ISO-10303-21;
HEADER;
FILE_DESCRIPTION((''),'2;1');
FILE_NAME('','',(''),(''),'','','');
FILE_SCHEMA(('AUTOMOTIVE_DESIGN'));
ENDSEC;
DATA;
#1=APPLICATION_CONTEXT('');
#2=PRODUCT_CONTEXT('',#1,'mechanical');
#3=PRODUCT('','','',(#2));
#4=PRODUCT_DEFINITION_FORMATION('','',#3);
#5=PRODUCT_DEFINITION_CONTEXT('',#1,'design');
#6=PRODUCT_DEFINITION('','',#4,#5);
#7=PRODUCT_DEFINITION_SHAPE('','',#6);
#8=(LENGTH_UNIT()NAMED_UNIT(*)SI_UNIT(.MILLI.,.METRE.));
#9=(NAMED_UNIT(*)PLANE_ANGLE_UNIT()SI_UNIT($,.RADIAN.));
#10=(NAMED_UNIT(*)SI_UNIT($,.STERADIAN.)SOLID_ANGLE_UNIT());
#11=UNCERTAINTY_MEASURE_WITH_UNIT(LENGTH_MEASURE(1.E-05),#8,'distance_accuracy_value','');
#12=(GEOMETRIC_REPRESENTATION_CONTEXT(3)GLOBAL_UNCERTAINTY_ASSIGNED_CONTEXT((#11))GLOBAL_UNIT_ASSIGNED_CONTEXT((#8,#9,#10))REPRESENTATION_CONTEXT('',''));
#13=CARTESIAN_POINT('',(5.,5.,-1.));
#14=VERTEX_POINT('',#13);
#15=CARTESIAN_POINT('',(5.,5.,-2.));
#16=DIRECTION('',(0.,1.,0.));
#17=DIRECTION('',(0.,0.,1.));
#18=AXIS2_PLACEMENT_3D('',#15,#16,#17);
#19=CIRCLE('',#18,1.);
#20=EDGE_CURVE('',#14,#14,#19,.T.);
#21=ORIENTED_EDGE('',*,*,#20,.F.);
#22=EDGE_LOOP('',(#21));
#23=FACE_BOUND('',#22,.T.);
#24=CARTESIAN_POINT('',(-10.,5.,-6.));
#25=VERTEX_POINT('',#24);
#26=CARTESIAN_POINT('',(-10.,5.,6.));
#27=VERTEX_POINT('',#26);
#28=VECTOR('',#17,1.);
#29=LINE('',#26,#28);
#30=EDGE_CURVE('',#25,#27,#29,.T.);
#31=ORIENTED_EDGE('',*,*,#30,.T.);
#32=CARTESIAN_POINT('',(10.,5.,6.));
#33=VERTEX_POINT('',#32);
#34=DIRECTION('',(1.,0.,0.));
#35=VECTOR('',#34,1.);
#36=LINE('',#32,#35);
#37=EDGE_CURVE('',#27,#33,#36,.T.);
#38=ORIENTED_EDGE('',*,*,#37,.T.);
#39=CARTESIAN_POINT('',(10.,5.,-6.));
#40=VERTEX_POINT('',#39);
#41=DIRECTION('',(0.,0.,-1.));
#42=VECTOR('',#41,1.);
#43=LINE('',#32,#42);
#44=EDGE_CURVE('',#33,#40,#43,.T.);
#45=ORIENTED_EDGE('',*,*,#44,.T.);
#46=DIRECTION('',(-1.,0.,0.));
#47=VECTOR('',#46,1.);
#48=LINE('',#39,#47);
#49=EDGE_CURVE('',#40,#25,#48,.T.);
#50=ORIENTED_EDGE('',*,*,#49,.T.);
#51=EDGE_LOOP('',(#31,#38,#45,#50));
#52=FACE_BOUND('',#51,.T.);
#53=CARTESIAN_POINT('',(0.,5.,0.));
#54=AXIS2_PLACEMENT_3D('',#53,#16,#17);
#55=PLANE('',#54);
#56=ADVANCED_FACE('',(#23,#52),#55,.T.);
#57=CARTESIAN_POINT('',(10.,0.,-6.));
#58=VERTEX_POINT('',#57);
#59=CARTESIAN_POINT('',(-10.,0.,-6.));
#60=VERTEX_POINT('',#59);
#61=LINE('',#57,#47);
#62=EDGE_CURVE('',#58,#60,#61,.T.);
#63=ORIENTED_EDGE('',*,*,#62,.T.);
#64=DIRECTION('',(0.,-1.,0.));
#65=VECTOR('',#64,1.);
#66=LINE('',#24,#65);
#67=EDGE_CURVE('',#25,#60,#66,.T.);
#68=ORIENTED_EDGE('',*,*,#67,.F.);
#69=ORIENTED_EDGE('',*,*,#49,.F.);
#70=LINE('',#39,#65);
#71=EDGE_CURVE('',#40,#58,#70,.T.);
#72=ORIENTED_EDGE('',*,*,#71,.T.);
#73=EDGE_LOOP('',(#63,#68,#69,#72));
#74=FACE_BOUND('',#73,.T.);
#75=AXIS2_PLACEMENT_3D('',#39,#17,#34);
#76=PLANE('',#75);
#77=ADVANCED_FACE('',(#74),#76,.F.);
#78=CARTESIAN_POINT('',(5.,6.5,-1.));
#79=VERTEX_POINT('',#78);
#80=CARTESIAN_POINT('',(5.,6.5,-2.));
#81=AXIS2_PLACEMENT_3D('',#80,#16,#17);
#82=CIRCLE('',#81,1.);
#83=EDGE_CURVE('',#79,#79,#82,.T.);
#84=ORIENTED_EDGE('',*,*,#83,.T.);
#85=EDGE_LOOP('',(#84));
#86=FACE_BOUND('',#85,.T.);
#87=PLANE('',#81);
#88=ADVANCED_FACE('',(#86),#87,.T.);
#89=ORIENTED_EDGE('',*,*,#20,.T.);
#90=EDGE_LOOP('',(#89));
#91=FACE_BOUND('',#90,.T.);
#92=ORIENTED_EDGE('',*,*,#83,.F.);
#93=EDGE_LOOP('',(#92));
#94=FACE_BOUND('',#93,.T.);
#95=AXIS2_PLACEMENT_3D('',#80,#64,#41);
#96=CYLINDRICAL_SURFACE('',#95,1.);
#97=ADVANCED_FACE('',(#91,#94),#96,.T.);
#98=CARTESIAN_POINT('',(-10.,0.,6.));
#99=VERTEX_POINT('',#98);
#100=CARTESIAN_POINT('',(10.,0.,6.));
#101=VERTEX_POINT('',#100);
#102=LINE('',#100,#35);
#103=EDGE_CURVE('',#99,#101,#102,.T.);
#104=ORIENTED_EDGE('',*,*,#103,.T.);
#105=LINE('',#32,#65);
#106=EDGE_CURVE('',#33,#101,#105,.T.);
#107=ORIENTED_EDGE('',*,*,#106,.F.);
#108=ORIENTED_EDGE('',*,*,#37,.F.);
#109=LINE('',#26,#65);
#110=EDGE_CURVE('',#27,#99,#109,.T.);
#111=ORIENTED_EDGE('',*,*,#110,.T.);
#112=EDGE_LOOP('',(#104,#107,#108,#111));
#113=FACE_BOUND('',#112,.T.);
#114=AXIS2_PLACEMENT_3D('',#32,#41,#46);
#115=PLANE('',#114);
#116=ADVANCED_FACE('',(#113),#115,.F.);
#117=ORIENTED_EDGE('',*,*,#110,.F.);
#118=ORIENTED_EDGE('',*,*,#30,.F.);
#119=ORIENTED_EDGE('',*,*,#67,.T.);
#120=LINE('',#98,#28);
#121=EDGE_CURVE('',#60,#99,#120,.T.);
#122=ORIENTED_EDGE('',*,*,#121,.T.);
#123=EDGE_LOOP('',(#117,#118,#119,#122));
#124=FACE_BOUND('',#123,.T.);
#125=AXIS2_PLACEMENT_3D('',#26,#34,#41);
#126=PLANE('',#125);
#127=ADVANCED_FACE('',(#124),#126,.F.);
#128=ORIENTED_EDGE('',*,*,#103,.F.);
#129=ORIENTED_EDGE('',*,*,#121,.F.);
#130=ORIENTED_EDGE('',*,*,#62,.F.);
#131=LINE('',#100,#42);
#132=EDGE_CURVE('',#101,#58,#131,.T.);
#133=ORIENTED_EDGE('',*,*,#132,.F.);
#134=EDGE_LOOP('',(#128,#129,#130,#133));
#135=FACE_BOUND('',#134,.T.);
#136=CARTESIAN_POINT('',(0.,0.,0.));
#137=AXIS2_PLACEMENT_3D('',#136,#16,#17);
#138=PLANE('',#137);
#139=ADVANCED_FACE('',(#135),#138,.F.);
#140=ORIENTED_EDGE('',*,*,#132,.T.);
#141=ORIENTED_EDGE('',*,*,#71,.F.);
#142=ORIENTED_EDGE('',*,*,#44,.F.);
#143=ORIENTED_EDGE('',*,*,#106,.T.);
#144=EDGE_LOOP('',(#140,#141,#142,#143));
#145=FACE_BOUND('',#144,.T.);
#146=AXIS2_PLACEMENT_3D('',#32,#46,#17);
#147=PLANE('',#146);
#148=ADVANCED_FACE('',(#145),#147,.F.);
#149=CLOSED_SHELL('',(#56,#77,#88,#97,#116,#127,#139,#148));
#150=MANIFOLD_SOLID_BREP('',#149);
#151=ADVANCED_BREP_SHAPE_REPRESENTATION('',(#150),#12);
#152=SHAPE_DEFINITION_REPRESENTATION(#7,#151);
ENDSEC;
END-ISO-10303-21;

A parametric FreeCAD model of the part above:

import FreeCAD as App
import Part
import Sketcher
from FreeCAD import Vector
Q = App.Units.Quantity

doc = App.newDocument("Part")
params = doc.addObject("Spreadsheet::Sheet", "Params")
for row, (alias, value) in enumerate([
    ("sketch1_width", "20 mm"),
    ("sketch1_height", "12 mm"),
    ("pad1_length", "5 mm"),
    ("sketch2_diameter", "2 mm"),
    ("pad2_length", "1.5 mm"),
], start=1):
    params.set(f"A{row}", alias)
    params.set(f"B{row}", "=" + value)
    params.setAlias(f"B{row}", alias)

body = doc.addObject("PartDesign::Body", "Body")

# Sketch on XZ plane
sketch1 = doc.addObject("Sketcher::SketchObject", "Sketch")
body.addObject(sketch1)
sketch1.AttachmentSupport = (doc.XZ_Plane, [""])
sketch1.MapMode = "FlatFace"
sketch1.addGeometry([
    Part.LineSegment(Vector(-10, -6, 0), Vector(-10, 6, 0)),
    Part.LineSegment(Vector(-10, 6, 0), Vector(10, 6, 0)),
    Part.LineSegment(Vector(10, 6, 0), Vector(10, -6, 0)),
    Part.LineSegment(Vector(10, -6, 0), Vector(-10, -6, 0)),
], False)
sketch1.addConstraint([
    Sketcher.Constraint("Coincident", 0, 2, 1, 1),
    Sketcher.Constraint("Coincident", 1, 2, 2, 1),
    Sketcher.Constraint("Coincident", 2, 2, 3, 1),
    Sketcher.Constraint("Coincident", 3, 2, 0, 1),
    Sketcher.Constraint("Vertical", 0),
    Sketcher.Constraint("Horizontal", 1),
    Sketcher.Constraint("Vertical", 2),
    Sketcher.Constraint("Horizontal", 3),
    Sketcher.Constraint("Symmetric", 0, 2, 2, 2, -1, 1),
    Sketcher.Constraint("DistanceX", 1, 1, 1, 2, Q("20 mm")),
    Sketcher.Constraint("DistanceY", 0, 1, 0, 2, Q("12 mm")),
])
sketch1.setExpression("Constraints[9]", "Params.sketch1_width")
sketch1.setExpression("Constraints[10]", "Params.sketch1_height")
pad1 = doc.addObject("PartDesign::Pad", "Pad")
body.addObject(pad1)
pad1.Profile = sketch1
pad1.setExpression("Length", "Params.pad1_length")
pad1.Reversed = True

# Sketch on XZ plane
sketch2 = doc.addObject("Sketcher::SketchObject", "Sketch001")
body.addObject(sketch2)
sketch2.AttachmentSupport = (doc.XZ_Plane, [""])
sketch2.MapMode = "FlatFace"
sketch2.AttachmentOffset = App.Placement(Vector(0, 0, -5), App.Rotation())
sketch2.addGeometry(Part.Circle(Vector(5, -2, 0), Vector(0, 0, 1), 1), False)
sketch2.addConstraint([
    Sketcher.Constraint("Diameter", 0, Q("2 mm")),
    Sketcher.Constraint("DistanceX", -1, 1, 0, 3, Q("5 mm")),
    Sketcher.Constraint("DistanceY", 0, 3, -1, 1, Q("2 mm")),
])
sketch2.setExpression("Constraints[0]", "Params.sketch2_diameter")
pad2 = doc.addObject("PartDesign::Pad", "Pad001")
body.addObject(pad2)
pad2.Profile = sketch2
pad2.setExpression("Length", "Params.pad2_length")
pad2.Reversed = True

doc.recompute()
